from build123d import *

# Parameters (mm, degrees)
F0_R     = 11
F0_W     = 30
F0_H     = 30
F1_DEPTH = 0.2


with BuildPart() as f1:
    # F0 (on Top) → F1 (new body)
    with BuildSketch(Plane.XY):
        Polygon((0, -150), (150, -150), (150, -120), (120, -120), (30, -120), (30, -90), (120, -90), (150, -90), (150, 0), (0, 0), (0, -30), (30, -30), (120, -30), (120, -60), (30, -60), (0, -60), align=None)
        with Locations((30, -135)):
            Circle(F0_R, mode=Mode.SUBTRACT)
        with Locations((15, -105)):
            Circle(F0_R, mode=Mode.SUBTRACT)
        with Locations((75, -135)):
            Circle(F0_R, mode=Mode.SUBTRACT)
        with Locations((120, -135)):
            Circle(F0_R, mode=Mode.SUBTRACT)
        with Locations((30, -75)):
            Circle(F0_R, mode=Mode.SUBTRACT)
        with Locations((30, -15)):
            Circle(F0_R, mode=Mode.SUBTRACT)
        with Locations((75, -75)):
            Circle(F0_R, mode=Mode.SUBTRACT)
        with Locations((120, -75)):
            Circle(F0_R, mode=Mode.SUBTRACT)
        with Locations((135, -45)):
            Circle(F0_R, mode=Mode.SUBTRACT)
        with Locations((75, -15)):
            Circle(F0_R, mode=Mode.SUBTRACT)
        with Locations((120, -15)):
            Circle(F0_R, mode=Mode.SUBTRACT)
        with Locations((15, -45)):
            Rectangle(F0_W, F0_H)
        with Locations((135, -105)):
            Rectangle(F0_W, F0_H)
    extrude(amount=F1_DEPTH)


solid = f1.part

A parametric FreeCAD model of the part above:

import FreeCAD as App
import Part
import Sketcher

doc = App.newDocument("Part")
body = doc.addObject("PartDesign::Body", "Body")

# Sketch on XY plane
sketch1 = body.newObject("Sketcher::SketchObject", "Sketch")
sketch1.AttachmentSupport = (doc.getObject("XY_Plane"), [""])
sketch1.MapMode = "FlatFace"
sketch1.addGeometry([
    Part.LineSegment(App.Vector(0, -150, 0), App.Vector(150, -150, 0)),  # 0
    Part.LineSegment(App.Vector(150, -150, 0), App.Vector(150, 0, 0)),  # 1
    Part.LineSegment(App.Vector(150, 0, 0), App.Vector(0, 0, 0)),  # 2
    Part.LineSegment(App.Vector(0, 0, 0), App.Vector(0, -150, 0)),  # 3
    Part.LineSegment(App.Vector(120, -120, 0), App.Vector(30, -120, 0)),  # 4
    Part.LineSegment(App.Vector(30, -120, 0), App.Vector(30, -90, 0)),  # 5
    Part.LineSegment(App.Vector(30, -90, 0), App.Vector(120, -90, 0)),  # 6
    Part.LineSegment(App.Vector(120, -90, 0), App.Vector(120, -120, 0)),  # 7
    Part.LineSegment(App.Vector(120, -60, 0), App.Vector(30, -60, 0)),  # 8
    Part.LineSegment(App.Vector(30, -60, 0), App.Vector(30, -30, 0)),  # 9
    Part.LineSegment(App.Vector(30, -30, 0), App.Vector(120, -30, 0)),  # 10
    Part.LineSegment(App.Vector(120, -30, 0), App.Vector(120, -60, 0)),  # 11
    Part.Circle(App.Vector(30, -135, 0), App.Vector(0, 0, 1), 11),  # 12
    Part.Circle(App.Vector(15, -105, 0), App.Vector(0, 0, 1), 11),  # 13
    Part.Circle(App.Vector(75, -135, 0), App.Vector(0, 0, 1), 11),  # 14
    Part.Circle(App.Vector(120, -135, 0), App.Vector(0, 0, 1), 11),  # 15
    Part.Circle(App.Vector(30, -75, 0), App.Vector(0, 0, 1), 11),  # 16
    Part.Circle(App.Vector(30, -15, 0), App.Vector(0, 0, 1), 11),  # 17
    Part.Circle(App.Vector(75, -75, 0), App.Vector(0, 0, 1), 11),  # 18
    Part.Circle(App.Vector(120, -75, 0), App.Vector(0, 0, 1), 11),  # 19
    Part.Circle(App.Vector(135, -45, 0), App.Vector(0, 0, 1), 11),  # 20
    Part.Circle(App.Vector(75, -15, 0), App.Vector(0, 0, 1), 11),  # 21
    Part.Circle(App.Vector(120, -15, 0), App.Vector(0, 0, 1), 11),  # 22
], False)
sketch1.addConstraint([
    Sketcher.Constraint("Coincident", 0, 2, 1, 1),
    Sketcher.Constraint("Coincident", 1, 2, 2, 1),
    Sketcher.Constraint("Coincident", 2, 2, 3, 1),
    Sketcher.Constraint("Coincident", 3, 2, 0, 1),
    Sketcher.Constraint("Coincident", 4, 2, 5, 1),
    Sketcher.Constraint("Coincident", 5, 2, 6, 1),
    Sketcher.Constraint("Coincident", 6, 2, 7, 1),
    Sketcher.Constraint("Coincident", 7, 2, 4, 1),
    Sketcher.Constraint("Coincident", 8, 2, 9, 1),
    Sketcher.Constraint("Coincident", 9, 2, 10, 1),
    Sketcher.Constraint("Coincident", 10, 2, 11, 1),
    Sketcher.Constraint("Coincident", 11, 2, 8, 1),
    Sketcher.Constraint("Horizontal", 0),
    Sketcher.Constraint("Vertical", 1),
    Sketcher.Constraint("Horizontal", 2),
    Sketcher.Constraint("Vertical", 3),
    Sketcher.Constraint("Horizontal", 4),
    Sketcher.Constraint("Vertical", 5),
    Sketcher.Constraint("Horizontal", 6),
    Sketcher.Constraint("Vertical", 7),
    Sketcher.Constraint("Horizontal", 8),
    Sketcher.Constraint("Vertical", 9),
    Sketcher.Constraint("Horizontal", 10),
    Sketcher.Constraint("Vertical", 11),
    Sketcher.Constraint("Coincident", 2, 2, -1, 1),
    Sketcher.Constraint("Equal", 12, 13),
    Sketcher.Constraint("Equal", 13, 14),
    Sketcher.Constraint("Equal", 14, 15),
    Sketcher.Constraint("Equal", 15, 16),
    Sketcher.Constraint("Equal", 16, 17),
    Sketcher.Constraint("Equal", 17, 18),
    Sketcher.Constraint("Equal", 18, 19),
    Sketcher.Constraint("Equal", 19, 20),
    Sketcher.Constraint("Equal", 20, 21),
    Sketcher.Constraint("Equal", 21, 22),
    Sketcher.Constraint("Horizontal", 12, 3, 14, 3),
    Sketcher.Constraint("Horizontal", 14, 3, 15, 3),
    Sketcher.Constraint("Horizontal", 16, 3, 18, 3),
    Sketcher.Constraint("Horizontal", 18, 3, 19, 3),
    Sketcher.Constraint("Horizontal", 17, 3, 21, 3),
    Sketcher.Constraint("Horizontal", 21, 3, 22, 3),
    Sketcher.Constraint("Vertical", 12, 3, 16, 3),
    Sketcher.Constraint("Vertical", 16, 3, 17, 3),
    Sketcher.Constraint("Vertical", 14, 3, 18, 3),
    Sketcher.Constraint("Vertical", 15, 3, 19, 3),
    Sketcher.Constraint("Vertical", 18, 3, 21, 3),
    Sketcher.Constraint("Vertical", 19, 3, 22, 3),
    Sketcher.Constraint("Vertical", 17, 3, 4, 2),
    Sketcher.Constraint("Vertical", 22, 3, 6, 2),
    Sketcher.Constraint("Vertical", 5, 2, 8, 2),
    Sketcher.Constraint("Vertical", 7, 2, 10, 2),
    Sketcher.Constraint("Equal", 2, 1),
    Sketcher.Constraint("Equal", 7, 9),
    Sketcher.Constraint("Diameter", 12, 22.0),
    Sketcher.Constraint("DistanceX", 0, 1, 0, 2, 150.0),
    Sketcher.Constraint("DistanceX", 4, 2, 4, 1, 90.0),
    Sketcher.Constraint("DistanceY", 5, 1, 5, 2, 30.0),
    Sketcher.Constraint("DistanceX", -1, 1, 12, 3, 30.0),
    Sketcher.Constraint("DistanceY", 12, 3, -1, 1, 135.0),
    Sketcher.Constraint("DistanceX", -1, 1, 13, 3, 15.0),
    Sketcher.Constraint("DistanceY", 13, 3, -1, 1, 105.0),
    Sketcher.Constraint("DistanceX", -1, 1, 14, 3, 75.0),
    Sketcher.Constraint("DistanceY", 16, 3, -1, 1, 75.0),
    Sketcher.Constraint("DistanceY", 17, 3, -1, 1, 15.0),
    Sketcher.Constraint("DistanceX", -1, 1, 20, 3, 135.0),
    Sketcher.Constraint("DistanceY", 20, 3, -1, 1, 45.0),
    Sketcher.Constraint("DistanceY", 4, 2, -1, 1, 120.0),
    Sketcher.Constraint("DistanceY", 8, 2, -1, 1, 60.0),
])
pad1 = body.newObject("PartDesign::Pad", "Pad")
pad1.Profile = sketch1
pad1.Length = 0.2

doc.recompute()
